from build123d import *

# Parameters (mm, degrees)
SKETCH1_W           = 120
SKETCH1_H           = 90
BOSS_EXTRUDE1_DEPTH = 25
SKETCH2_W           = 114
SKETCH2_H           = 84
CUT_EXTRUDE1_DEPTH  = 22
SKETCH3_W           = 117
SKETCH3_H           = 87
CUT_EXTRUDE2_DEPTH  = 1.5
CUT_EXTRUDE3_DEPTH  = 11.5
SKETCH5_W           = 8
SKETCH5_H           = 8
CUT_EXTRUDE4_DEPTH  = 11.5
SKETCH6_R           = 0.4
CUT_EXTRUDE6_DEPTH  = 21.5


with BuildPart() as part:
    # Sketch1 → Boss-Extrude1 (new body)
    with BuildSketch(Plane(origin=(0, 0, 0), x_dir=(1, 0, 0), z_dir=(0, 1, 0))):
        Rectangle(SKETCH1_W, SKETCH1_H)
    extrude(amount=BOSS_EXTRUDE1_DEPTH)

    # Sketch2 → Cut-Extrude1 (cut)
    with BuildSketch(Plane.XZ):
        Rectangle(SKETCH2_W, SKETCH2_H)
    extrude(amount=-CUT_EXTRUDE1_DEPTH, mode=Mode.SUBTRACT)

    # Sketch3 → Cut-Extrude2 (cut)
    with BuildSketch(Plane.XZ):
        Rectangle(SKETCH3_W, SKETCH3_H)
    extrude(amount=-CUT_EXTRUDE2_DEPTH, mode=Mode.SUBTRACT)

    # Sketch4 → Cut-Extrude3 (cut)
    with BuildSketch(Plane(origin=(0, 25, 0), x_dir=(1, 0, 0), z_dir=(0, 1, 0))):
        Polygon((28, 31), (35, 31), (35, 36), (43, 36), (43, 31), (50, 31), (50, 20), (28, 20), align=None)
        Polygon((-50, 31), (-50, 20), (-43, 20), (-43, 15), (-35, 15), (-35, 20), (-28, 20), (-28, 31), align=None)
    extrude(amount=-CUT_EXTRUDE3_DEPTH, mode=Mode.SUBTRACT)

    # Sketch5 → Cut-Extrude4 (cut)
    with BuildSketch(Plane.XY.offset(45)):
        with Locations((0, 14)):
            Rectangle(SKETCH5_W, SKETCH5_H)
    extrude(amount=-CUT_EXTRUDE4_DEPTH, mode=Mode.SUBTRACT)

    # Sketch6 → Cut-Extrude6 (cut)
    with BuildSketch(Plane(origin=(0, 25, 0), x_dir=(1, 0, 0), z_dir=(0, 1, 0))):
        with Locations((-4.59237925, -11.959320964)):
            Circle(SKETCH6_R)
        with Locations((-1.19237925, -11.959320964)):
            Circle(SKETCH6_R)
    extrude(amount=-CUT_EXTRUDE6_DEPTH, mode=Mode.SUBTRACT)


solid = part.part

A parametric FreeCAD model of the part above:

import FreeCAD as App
import Part
import Sketcher

V = App.Vector


def add_polygon(sketch, points):
    """Adds a closed chain of lines whose ends are joined by coincident constraints."""
    first, n = sketch.GeometryCount, len(points)
    for a, b in zip(points, points[1:] + points[:1]):
        sketch.addGeometry(Part.LineSegment(App.Vector(*a, 0), App.Vector(*b, 0)), False)
    for i in range(n):
        sketch.addConstraint(Sketcher.Constraint("Coincident", first + i, 2, first + (i + 1) % n, 1))

doc = App.newDocument("Part")
params = doc.addObject("Spreadsheet::Sheet", "Params")
for row, (alias, value) in enumerate([
    ("sketch1_width", "120 mm"),
    ("sketch1_height", "90 mm"),
    ("pad1_length", "25 mm"),
    ("sketch2_width", "114 mm"),
    ("sketch2_height", "84 mm"),
    ("pocket1_length", "22 mm"),
    ("sketch3_width", "117 mm"),
    ("sketch3_height", "87 mm"),
    ("pocket2_length", "1.5 mm"),
    ("sketch4_width", "7 mm"),
    ("sketch4_width2", "22 mm"),
    ("sketch4_height", "11 mm"),
    ("sketch4_height2", "5 mm"),
    ("pocket3_length", "11.5 mm"),
    ("sketch5_width", "8 mm"),
    ("pocket4_length", "11.5 mm"),
    ("sketch6_diameter", "0.8 mm"),
    ("pocket5_length", "21.5 mm"),
], start=1):
    params.set(f"A{row}", alias)
    params.set(f"B{row}", "=" + value)
    params.setAlias(f"B{row}", alias)

body = doc.addObject("PartDesign::Body", "Body")

# Sketch on XZ plane
sketch1 = body.newObject("Sketcher::SketchObject", "Sketch")
sketch1.AttachmentSupport = (doc.getObject("XZ_Plane"), [""])
sketch1.MapMode = "FlatFace"
add_polygon(sketch1, [(-60, -45), (-60, 45), (60, 45), (60, -45)])  # lines 0-3
sketch1.addConstraint(Sketcher.Constraint("Vertical", 0))
sketch1.addConstraint(Sketcher.Constraint("Horizontal", 1))
sketch1.addConstraint(Sketcher.Constraint("Vertical", 2))
sketch1.addConstraint(Sketcher.Constraint("Horizontal", 3))
sketch1.addConstraint(Sketcher.Constraint("Symmetric", 0, 2, 2, 2, -1, 1))
sketch1.addConstraint(Sketcher.Constraint("DistanceX", 1, 1, 1, 2, 120.0))
sketch1.addConstraint(Sketcher.Constraint("DistanceY", 0, 1, 0, 2, 90.0))
sketch1.setExpression("Constraints[9]", "Params.sketch1_width")
sketch1.setExpression("Constraints[10]", "Params.sketch1_height")
pad1 = body.newObject("PartDesign::Pad", "Pad")
pad1.Profile = sketch1
pad1.setExpression("Length", "Params.pad1_length")
pad1.Reversed = True

# Sketch on XZ plane
sketch2 = body.newObject("Sketcher::SketchObject", "Sketch001")
sketch2.AttachmentSupport = (doc.getObject("XZ_Plane"), [""])
sketch2.MapMode = "FlatFace"
add_polygon(sketch2, [(-57, 42), (-57, -42), (57, -42), (57, 42)])  # lines 0-3
sketch2.addConstraint(Sketcher.Constraint("Vertical", 0))
sketch2.addConstraint(Sketcher.Constraint("Horizontal", 1))
sketch2.addConstraint(Sketcher.Constraint("Vertical", 2))
sketch2.addConstraint(Sketcher.Constraint("Horizontal", 3))
sketch2.addConstraint(Sketcher.Constraint("Symmetric", 0, 2, 2, 2, -1, 1))
sketch2.addConstraint(Sketcher.Constraint("DistanceX", 1, 1, 1, 2, 114.0))
sketch2.addConstraint(Sketcher.Constraint("DistanceY", 0, 2, 0, 1, 84.0))
sketch2.setExpression("Constraints[9]", "Params.sketch2_width")
sketch2.setExpression("Constraints[10]", "Params.sketch2_height")
pocket1 = body.newObject("PartDesign::Pocket", "Pocket")
pocket1.Profile = sketch2
pocket1.setExpression("Length", "Params.pocket1_length")

# Sketch on XZ plane
sketch3 = body.newObject("Sketcher::SketchObject", "Sketch002")
sketch3.AttachmentSupport = (doc.getObject("XZ_Plane"), [""])
sketch3.MapMode = "FlatFace"
add_polygon(sketch3, [(-58, 44), (-58, -44), (58, -44), (58, 44)])  # lines 0-3
sketch3.addConstraint(Sketcher.Constraint("Vertical", 0))
sketch3.addConstraint(Sketcher.Constraint("Horizontal", 1))
sketch3.addConstraint(Sketcher.Constraint("Vertical", 2))
sketch3.addConstraint(Sketcher.Constraint("Horizontal", 3))
sketch3.addConstraint(Sketcher.Constraint("Symmetric", 0, 2, 2, 2, -1, 1))
sketch3.addConstraint(Sketcher.Constraint("DistanceX", 1, 1, 1, 2, 117.0))
sketch3.addConstraint(Sketcher.Constraint("DistanceY", 0, 2, 0, 1, 87.0))
sketch3.setExpression("Constraints[9]", "Params.sketch3_width")
sketch3.setExpression("Constraints[10]", "Params.sketch3_height")
pocket2 = body.newObject("PartDesign::Pocket", "Pocket001")
pocket2.Profile = sketch3
pocket2.setExpression("Length", "Params.pocket2_length")

# Sketch on XZ plane
sketch4 = body.newObject("Sketcher::SketchObject", "Sketch003")
sketch4.AttachmentSupport = (doc.getObject("XZ_Plane"), [""])
sketch4.MapMode = "FlatFace"
sketch4.AttachmentOffset = App.Placement(V(0, 0, -25), App.Rotation())
add_polygon(sketch4, [(35, -31), (28, -31), (28, -20), (50, -20), (50, -31), (43, -31), (43, -36), (35, -36)])  # lines 0-7
add_polygon(sketch4, [(-50, -31), (-50, -20), (-43, -20), (-43, -15), (-35, -15), (-35, -20), (-28, -20), (-28, -31)])  # lines 8-15
sketch4.addConstraint(Sketcher.Constraint("Horizontal", 0))
sketch4.addConstraint(Sketcher.Constraint("Vertical", 1))
sketch4.addConstraint(Sketcher.Constraint("Horizontal", 2))
sketch4.addConstraint(Sketcher.Constraint("Vertical", 3))
sketch4.addConstraint(Sketcher.Constraint("Horizontal", 4))
sketch4.addConstraint(Sketcher.Constraint("Vertical", 5))
sketch4.addConstraint(Sketcher.Constraint("Horizontal", 6))
sketch4.addConstraint(Sketcher.Constraint("Vertical", 7))
sketch4.addConstraint(Sketcher.Constraint("Vertical", 8))
sketch4.addConstraint(Sketcher.Constraint("Horizontal", 9))
sketch4.addConstraint(Sketcher.Constraint("Vertical", 10))
sketch4.addConstraint(Sketcher.Constraint("Horizontal", 11))
sketch4.addConstraint(Sketcher.Constraint("Vertical", 12))
sketch4.addConstraint(Sketcher.Constraint("Horizontal", 13))
sketch4.addConstraint(Sketcher.Constraint("Vertical", 14))
sketch4.addConstraint(Sketcher.Constraint("Horizontal", 15))
sketch4.addConstraint(Sketcher.Constraint("Symmetric", 2, 2, 8, 2, -2))
sketch4.addConstraint(Sketcher.Constraint("Symmetric", 1, 2, 13, 2, -2))
sketch4.addConstraint(Sketcher.Constraint("Horizontal", 0, 2, 3, 2))
sketch4.addConstraint(Sketcher.Constraint("Horizontal", 7, 2, 14, 2))
sketch4.addConstraint(Sketcher.Constraint("Equal", 0, 4))
sketch4.addConstraint(Sketcher.Constraint("Equal", 4, 9))
sketch4.addConstraint(Sketcher.Constraint("Equal", 6, 11))
sketch4.addConstraint(Sketcher.Constraint("Equal", 7, 10))
sketch4.addConstraint(Sketcher.Constraint("DistanceX", 0, 2, 0, 1, 7.0))
sketch4.addConstraint(Sketcher.Constraint("DistanceX", 2, 1, 2, 2, 22.0))
sketch4.addConstraint(Sketcher.Constraint("DistanceY", 1, 1, 1, 2, 11.0))
sketch4.addConstraint(Sketcher.Constraint("DistanceY", 5, 2, 5, 1, 5.0))
sketch4.addConstraint(Sketcher.Constraint("DistanceX", -1, 1, 0, 2, 28.0))
sketch4.addConstraint(Sketcher.Constraint("DistanceY", 0, 2, -1, 1, 31.0))
sketch4.setExpression("Constraints[40]", "Params.sketch4_width")
sketch4.setExpression("Constraints[41]", "Params.sketch4_width2")
sketch4.setExpression("Constraints[42]", "Params.sketch4_height")
sketch4.setExpression("Constraints[43]", "Params.sketch4_height2")
pocket3 = body.newObject("PartDesign::Pocket", "Pocket002")
pocket3.Profile = sketch4
pocket3.setExpression("Length", "Params.pocket3_length")
pocket3.Reversed = True

# Sketch on XY plane
sketch5 = body.newObject("Sketcher::SketchObject", "Sketch004")
sketch5.AttachmentSupport = (doc.getObject("XY_Plane"), [""])
sketch5.MapMode = "FlatFace"
sketch5.AttachmentOffset = App.Placement(V(0, 0, 45), App.Rotation())
add_polygon(sketch5, [(-4, 18), (-4, 10), (4, 10), (4, 18)])  # lines 0-3
sketch5.addConstraint(Sketcher.Constraint("Vertical", 0))
sketch5.addConstraint(Sketcher.Constraint("Horizontal", 1))
sketch5.addConstraint(Sketcher.Constraint("Vertical", 2))
sketch5.addConstraint(Sketcher.Constraint("Horizontal", 3))
sketch5.addConstraint(Sketcher.Constraint("Equal", 3, 0))
sketch5.addConstraint(Sketcher.Constraint("DistanceX", 1, 1, 1, 2, 8.0))
sketch5.addConstraint(Sketcher.Constraint("DistanceX", 0, 2, -1, 1, 4.0))
sketch5.addConstraint(Sketcher.Constraint("DistanceY", -1, 1, 0, 2, 10.0))
sketch5.setExpression("Constraints[9]", "Params.sketch5_width")
pocket4 = body.newObject("PartDesign::Pocket", "Pocket003")
pocket4.Profile = sketch5
pocket4.setExpression("Length", "Params.pocket4_length")

# Sketch on XZ plane
sketch6 = body.newObject("Sketcher::SketchObject", "Sketch005")
sketch6.AttachmentSupport = (doc.getObject("XZ_Plane"), [""])
sketch6.MapMode = "FlatFace"
sketch6.AttachmentOffset = App.Placement(V(0, 0, -25), App.Rotation())
sketch6.addGeometry(Part.Circle(V(-4.59, 11.96, 0), V(0, 0, 1), 0.4), False)
sketch6.addGeometry(Part.Circle(V(-1.19, 11.96, 0), V(0, 0, 1), 0.4), False)
sketch6.addConstraint(Sketcher.Constraint("Equal", 0, 1))
sketch6.addConstraint(Sketcher.Constraint("Horizontal", 0, 3, 1, 3))
sketch6.addConstraint(Sketcher.Constraint("Diameter", 0, 0.8))
sketch6.addConstraint(Sketcher.Constraint("DistanceX", 0, 3, 1, 3, 3.4))
sketch6.addConstraint(Sketcher.Constraint("DistanceX", 0, 3, -1, 1, 4.592379))
sketch6.addConstraint(Sketcher.Constraint("DistanceY", -1, 1, 0, 3, 11.959321))
sketch6.setExpression("Constraints[2]", "Params.sketch6_diameter")
pocket5 = body.newObject("PartDesign::Pocket", "Pocket004")
pocket5.Profile = sketch6
pocket5.setExpression("Length", "Params.pocket5_length")
pocket5.Reversed = True

doc.recompute()
